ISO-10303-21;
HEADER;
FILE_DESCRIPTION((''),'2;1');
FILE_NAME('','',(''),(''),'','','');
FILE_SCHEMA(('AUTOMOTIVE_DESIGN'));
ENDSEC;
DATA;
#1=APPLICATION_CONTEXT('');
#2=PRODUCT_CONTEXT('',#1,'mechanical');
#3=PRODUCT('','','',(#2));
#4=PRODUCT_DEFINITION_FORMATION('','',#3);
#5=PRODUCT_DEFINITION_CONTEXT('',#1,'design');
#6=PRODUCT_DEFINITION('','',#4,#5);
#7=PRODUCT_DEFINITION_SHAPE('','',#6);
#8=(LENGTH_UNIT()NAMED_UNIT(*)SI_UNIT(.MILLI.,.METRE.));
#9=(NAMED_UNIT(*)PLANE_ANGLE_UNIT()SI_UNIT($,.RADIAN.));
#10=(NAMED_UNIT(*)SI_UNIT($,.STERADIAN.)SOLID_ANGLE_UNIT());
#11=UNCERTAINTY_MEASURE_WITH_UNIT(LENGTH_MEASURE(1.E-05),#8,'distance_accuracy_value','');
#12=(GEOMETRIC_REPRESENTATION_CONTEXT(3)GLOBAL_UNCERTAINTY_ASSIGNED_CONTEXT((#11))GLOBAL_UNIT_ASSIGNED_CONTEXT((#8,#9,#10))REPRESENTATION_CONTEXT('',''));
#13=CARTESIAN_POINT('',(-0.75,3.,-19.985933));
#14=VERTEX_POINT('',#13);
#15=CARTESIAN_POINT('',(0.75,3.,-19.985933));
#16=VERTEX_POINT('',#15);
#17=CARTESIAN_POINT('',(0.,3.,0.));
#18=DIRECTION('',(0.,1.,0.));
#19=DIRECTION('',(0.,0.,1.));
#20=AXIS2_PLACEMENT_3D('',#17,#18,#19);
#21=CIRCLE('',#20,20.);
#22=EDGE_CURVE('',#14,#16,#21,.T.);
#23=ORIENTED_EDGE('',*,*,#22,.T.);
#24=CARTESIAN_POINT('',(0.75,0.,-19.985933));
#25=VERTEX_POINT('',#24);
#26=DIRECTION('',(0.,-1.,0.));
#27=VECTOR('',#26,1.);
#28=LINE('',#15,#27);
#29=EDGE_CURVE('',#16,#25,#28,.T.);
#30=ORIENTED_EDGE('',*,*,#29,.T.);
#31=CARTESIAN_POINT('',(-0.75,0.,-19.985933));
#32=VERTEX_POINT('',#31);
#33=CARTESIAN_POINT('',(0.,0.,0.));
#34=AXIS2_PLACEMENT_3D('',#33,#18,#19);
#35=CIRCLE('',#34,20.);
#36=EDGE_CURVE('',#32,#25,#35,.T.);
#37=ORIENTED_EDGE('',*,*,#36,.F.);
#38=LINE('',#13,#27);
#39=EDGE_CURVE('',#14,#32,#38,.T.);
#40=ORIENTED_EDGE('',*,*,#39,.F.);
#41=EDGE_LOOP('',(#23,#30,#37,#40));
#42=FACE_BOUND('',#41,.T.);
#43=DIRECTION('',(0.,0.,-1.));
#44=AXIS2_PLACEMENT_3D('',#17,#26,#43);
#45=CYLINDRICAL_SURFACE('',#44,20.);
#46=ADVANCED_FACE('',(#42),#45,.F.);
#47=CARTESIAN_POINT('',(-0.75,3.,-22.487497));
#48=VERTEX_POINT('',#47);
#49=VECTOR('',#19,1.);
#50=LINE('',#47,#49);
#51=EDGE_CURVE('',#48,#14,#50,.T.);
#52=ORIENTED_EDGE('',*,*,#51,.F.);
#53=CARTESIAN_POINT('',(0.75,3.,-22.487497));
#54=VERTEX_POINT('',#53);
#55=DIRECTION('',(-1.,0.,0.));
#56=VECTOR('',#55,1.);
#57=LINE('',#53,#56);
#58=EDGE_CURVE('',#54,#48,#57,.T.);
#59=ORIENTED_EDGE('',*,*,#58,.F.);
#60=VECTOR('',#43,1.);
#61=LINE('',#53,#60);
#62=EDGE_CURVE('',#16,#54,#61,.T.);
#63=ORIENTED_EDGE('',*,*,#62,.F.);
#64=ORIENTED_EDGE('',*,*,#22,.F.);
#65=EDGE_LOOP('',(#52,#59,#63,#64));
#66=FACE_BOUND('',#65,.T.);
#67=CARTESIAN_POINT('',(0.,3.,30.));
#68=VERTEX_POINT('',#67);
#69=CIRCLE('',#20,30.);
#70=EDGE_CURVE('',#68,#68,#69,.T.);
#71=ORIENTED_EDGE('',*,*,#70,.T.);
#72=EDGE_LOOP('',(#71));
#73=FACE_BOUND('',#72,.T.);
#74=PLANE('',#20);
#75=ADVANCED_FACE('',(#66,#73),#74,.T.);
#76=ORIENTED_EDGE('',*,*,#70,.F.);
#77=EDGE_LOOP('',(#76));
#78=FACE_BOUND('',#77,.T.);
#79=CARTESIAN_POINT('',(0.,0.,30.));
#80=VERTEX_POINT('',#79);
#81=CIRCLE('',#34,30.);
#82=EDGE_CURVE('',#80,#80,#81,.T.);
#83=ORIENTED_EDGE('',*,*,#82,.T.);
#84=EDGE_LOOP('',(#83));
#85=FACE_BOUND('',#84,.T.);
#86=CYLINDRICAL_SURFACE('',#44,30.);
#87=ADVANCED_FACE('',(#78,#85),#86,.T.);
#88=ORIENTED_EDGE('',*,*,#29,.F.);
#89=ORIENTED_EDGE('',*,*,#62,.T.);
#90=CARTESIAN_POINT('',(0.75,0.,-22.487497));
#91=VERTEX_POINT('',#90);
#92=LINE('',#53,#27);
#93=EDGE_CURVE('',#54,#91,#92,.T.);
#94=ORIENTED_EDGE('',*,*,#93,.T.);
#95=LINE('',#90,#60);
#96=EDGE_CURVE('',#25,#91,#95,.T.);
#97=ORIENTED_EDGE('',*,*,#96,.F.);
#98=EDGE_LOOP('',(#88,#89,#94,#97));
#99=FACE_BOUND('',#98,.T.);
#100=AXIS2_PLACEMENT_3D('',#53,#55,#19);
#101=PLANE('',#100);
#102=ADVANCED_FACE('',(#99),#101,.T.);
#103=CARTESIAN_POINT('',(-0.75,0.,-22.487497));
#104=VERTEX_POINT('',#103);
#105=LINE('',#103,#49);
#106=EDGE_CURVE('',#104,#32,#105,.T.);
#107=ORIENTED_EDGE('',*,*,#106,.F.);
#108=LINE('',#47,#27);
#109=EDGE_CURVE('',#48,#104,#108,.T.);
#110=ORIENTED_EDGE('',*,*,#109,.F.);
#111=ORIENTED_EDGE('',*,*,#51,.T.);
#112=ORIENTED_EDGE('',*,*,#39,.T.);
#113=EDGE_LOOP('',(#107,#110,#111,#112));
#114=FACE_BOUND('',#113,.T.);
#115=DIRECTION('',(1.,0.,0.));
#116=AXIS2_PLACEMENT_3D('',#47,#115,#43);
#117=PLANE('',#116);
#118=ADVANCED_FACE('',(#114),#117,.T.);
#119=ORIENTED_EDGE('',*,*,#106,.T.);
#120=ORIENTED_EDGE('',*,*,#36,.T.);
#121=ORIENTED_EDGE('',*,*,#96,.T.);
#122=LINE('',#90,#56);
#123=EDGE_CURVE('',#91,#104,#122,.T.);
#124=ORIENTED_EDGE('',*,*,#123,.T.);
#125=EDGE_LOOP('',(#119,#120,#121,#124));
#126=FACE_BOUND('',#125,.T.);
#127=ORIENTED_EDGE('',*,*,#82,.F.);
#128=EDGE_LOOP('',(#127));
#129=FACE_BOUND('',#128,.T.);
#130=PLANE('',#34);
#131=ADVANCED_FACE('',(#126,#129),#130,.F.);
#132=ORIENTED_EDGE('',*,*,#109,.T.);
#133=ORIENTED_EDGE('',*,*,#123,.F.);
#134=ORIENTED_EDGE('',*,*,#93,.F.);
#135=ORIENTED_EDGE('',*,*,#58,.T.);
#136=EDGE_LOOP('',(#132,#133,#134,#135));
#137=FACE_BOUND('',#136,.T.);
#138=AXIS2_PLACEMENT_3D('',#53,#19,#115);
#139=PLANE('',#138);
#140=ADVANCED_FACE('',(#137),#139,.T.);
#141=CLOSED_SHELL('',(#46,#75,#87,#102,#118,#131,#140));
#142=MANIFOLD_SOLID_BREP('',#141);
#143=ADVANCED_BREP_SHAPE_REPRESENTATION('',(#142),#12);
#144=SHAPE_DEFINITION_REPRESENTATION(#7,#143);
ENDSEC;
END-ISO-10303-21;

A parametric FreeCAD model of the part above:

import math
import FreeCAD as App
import Part
import Sketcher
from FreeCAD import Vector
Q = App.Units.Quantity

doc = App.newDocument("Part")
body = doc.addObject("PartDesign::Body", "Body")

# Sketch on XZ plane
sketch1 = body.newObject("Sketcher::SketchObject", "Sketch")
sketch1.AttachmentSupport = (doc.getObject("XZ_Plane"), [""])
sketch1.MapMode = "FlatFace"
sketch1.addGeometry(Part.Circle(Vector(0, 0, 0), Vector(0, 0, 1), 30), False)
sketch1.addGeometry(Part.LineSegment(Vector(-0.75, -22.487497, 0), Vector(0.75, -22.487497, 0)), False)
sketch1.addGeometry(Part.LineSegment(Vector(0.75, -22.487497, 0), Vector(0.75, -19.985933, 0)), False)
sketch1.addGeometry(Part.ArcOfCircle(Part.Circle(Vector(0, 0, 0), Vector(0, 0, 1), 20), math.radians(-87.850904), math.radians(267.850904)), False)
sketch1.addGeometry(Part.LineSegment(Vector(-0.75, -19.985933, 0), Vector(-0.75, -22.487497, 0)), False)
sketch1.addConstraint(Sketcher.Constraint("Coincident", 1, 2, 2, 1))
sketch1.addConstraint(Sketcher.Constraint("Coincident", 2, 2, 3, 1))
sketch1.addConstraint(Sketcher.Constraint("Coincident", 3, 2, 4, 1))
sketch1.addConstraint(Sketcher.Constraint("Coincident", 4, 2, 1, 1))
sketch1.addConstraint(Sketcher.Constraint("Horizontal", 1))
sketch1.addConstraint(Sketcher.Constraint("Vertical", 2))
sketch1.addConstraint(Sketcher.Constraint("Vertical", 4))
sketch1.addConstraint(Sketcher.Constraint("Coincident", 0, 3, -1, 1))
sketch1.addConstraint(Sketcher.Constraint("Coincident", 3, 3, -1, 1))
sketch1.addConstraint(Sketcher.Constraint("Horizontal", 2, 2, 3, 2))
sketch1.addConstraint(Sketcher.Constraint("Diameter", 0, Q("60 mm")))
sketch1.addConstraint(Sketcher.Constraint("Radius", 3, Q("20 mm")))
sketch1.addConstraint(Sketcher.Constraint("DistanceX", 1, 1, 1, 2, Q("1.5 mm")))
sketch1.addConstraint(Sketcher.Constraint("DistanceY", 2, 1, 2, 2, Q("2.501564 mm")))
pad1 = body.newObject("PartDesign::Pad", "Pad")
pad1.Profile = sketch1
pad1.Length = 3
pad1.Reversed = True

doc.recompute()
